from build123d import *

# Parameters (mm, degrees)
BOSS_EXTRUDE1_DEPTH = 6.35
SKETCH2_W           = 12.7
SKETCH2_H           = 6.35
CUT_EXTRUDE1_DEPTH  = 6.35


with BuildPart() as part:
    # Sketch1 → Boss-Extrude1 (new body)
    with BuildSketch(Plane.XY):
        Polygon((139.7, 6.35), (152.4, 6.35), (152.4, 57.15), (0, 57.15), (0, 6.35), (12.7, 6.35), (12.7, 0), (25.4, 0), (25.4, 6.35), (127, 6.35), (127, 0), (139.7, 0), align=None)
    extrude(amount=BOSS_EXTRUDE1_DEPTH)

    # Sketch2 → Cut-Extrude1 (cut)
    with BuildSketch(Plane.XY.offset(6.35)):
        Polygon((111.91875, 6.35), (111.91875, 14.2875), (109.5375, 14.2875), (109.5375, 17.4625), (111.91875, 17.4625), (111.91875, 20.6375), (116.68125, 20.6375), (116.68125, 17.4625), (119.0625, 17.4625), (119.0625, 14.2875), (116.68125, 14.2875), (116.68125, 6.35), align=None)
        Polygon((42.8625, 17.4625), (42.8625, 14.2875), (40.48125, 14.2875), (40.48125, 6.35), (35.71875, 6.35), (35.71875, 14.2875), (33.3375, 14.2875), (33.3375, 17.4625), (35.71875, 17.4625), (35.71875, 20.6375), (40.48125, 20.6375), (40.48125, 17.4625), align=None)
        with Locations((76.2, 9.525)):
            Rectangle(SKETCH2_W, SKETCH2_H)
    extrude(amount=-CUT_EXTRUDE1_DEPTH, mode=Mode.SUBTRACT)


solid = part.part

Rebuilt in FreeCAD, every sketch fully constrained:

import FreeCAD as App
import Part
import Sketcher

V = App.Vector
Q = App.Units.Quantity


def add_polygon(sketch, points):
    """Adds a closed chain of lines whose ends are joined by coincident constraints."""
    first, n = sketch.GeometryCount, len(points)
    for a, b in zip(points, points[1:] + points[:1]):
        sketch.addGeometry(Part.LineSegment(App.Vector(*a, 0), App.Vector(*b, 0)), False)
    for i in range(n):
        sketch.addConstraint(Sketcher.Constraint("Coincident", first + i, 2, first + (i + 1) % n, 1))

doc = App.newDocument("Part")
body = doc.addObject("PartDesign::Body", "Body")

# Sketch on XY plane
sketch1 = doc.addObject("Sketcher::SketchObject", "Sketch")
body.addObject(sketch1)
sketch1.AttachmentSupport = (doc.XY_Plane, [""])
sketch1.MapMode = "FlatFace"
add_polygon(sketch1, [(140, 6), (152, 6), (152, 57), (0, 57), (0, 6), (13, 6), (13, 0), (25, 0), (25, 6), (127, 6), (127, 0), (140, 0)])  # lines 0-11
sketch1.addConstraint([
    Sketcher.Constraint("Horizontal", 0),
    Sketcher.Constraint("Vertical", 1),
    Sketcher.Constraint("Horizontal", 2),
    Sketcher.Constraint("Vertical", 3),
    Sketcher.Constraint("Horizontal", 4),
    Sketcher.Constraint("Vertical", 5),
    Sketcher.Constraint("Horizontal", 6),
    Sketcher.Constraint("Vertical", 7),
    Sketcher.Constraint("Horizontal", 8),
    Sketcher.Constraint("Vertical", 9),
    Sketcher.Constraint("Horizontal", 10),
    Sketcher.Constraint("Vertical", 11),
    Sketcher.Constraint("PointOnObject", 2, 2, -2),
    Sketcher.Constraint("PointOnObject", 5, 2, -1),
    Sketcher.Constraint("PointOnObject", 9, 2, -1),
    Sketcher.Constraint("Horizontal", 0, 2, 3, 2),
    Sketcher.Constraint("Horizontal", 4, 2, 7, 2),
    Sketcher.Constraint("Equal", 0, 4),
    Sketcher.Constraint("Equal", 4, 6),
    Sketcher.Constraint("Equal", 6, 10),
    Sketcher.Constraint("DistanceX", 2, 2, 2, 1, Q("6 in")),
    Sketcher.Constraint("DistanceX", 8, 1, 8, 2, Q("4 in")),
    Sketcher.Constraint("DistanceY", 1, 1, 1, 2, Q("2 in")),
    Sketcher.Constraint("DistanceY", 5, 2, 5, 1, Q("0.25 in")),
])
pad1 = doc.addObject("PartDesign::Pad", "Pad")
body.addObject(pad1)
pad1.Profile = sketch1
pad1.Length = Q("0.25 in")

# Sketch on XY plane
sketch2 = doc.addObject("Sketcher::SketchObject", "Sketch001")
body.addObject(sketch2)
sketch2.AttachmentSupport = (doc.XY_Plane, [""])
sketch2.MapMode = "FlatFace"
sketch2.AttachmentOffset = App.Placement(V(0, 0, 0.25 * 25.4), App.Rotation())
add_polygon(sketch2, [(111.9, 14.3), (111.9, 6.3), (116.7, 6.3), (116.7, 14.3), (119.1, 14.3), (119.1, 17.5), (116.7, 17.5), (116.7, 20.6), (111.9, 20.6), (111.9, 17.5), (109.5, 17.5), (109.5, 14.3)])  # lines 0-11
add_polygon(sketch2, [(42.9, 14.3), (42.9, 17.5), (40.5, 17.5), (40.5, 20.6), (35.7, 20.6), (35.7, 17.5), (33.3, 17.5), (33.3, 14.3), (35.7, 14.3), (35.7, 6.3), (40.5, 6.3), (40.5, 14.3)])  # lines 12-23
add_polygon(sketch2, [(69.8, 12.7), (69.8, 6.3), (82.5, 6.3), (82.5, 12.7)])  # lines 24-27
sketch2.addConstraint([
    Sketcher.Constraint("Vertical", 0),
    Sketcher.Constraint("Horizontal", 1),
    Sketcher.Constraint("Vertical", 2),
    Sketcher.Constraint("Horizontal", 3),
    Sketcher.Constraint("Vertical", 4),
    Sketcher.Constraint("Horizontal", 5),
    Sketcher.Constraint("Vertical", 6),
    Sketcher.Constraint("Horizontal", 7),
    Sketcher.Constraint("Vertical", 8),
    Sketcher.Constraint("Horizontal", 9),
    Sketcher.Constraint("Vertical", 10),
    Sketcher.Constraint("Horizontal", 11),
    Sketcher.Constraint("Vertical", 12),
    Sketcher.Constraint("Horizontal", 13),
    Sketcher.Constraint("Vertical", 14),
    Sketcher.Constraint("Horizontal", 15),
    Sketcher.Constraint("Vertical", 16),
    Sketcher.Constraint("Horizontal", 17),
    Sketcher.Constraint("Vertical", 18),
    Sketcher.Constraint("Horizontal", 19),
    Sketcher.Constraint("Vertical", 20),
    Sketcher.Constraint("Horizontal", 21),
    Sketcher.Constraint("Vertical", 22),
    Sketcher.Constraint("Horizontal", 23),
    Sketcher.Constraint("Vertical", 24),
    Sketcher.Constraint("Horizontal", 25),
    Sketcher.Constraint("Vertical", 26),
    Sketcher.Constraint("Horizontal", 27),
    Sketcher.Constraint("Horizontal", 5, 2, 8, 2),
    Sketcher.Constraint("Horizontal", 3, 2, 10, 2),
    Sketcher.Constraint("Horizontal", 9, 2, 12, 2),
    Sketcher.Constraint("Horizontal", 7, 2, 14, 2),
    Sketcher.Constraint("Horizontal", 13, 2, 16, 2),
    Sketcher.Constraint("Horizontal", 11, 2, 18, 2),
    Sketcher.Constraint("Horizontal", 1, 2, 20, 2),
    Sketcher.Constraint("Horizontal", 19, 2, 22, 2),
    Sketcher.Constraint("Horizontal", 21, 2, 24, 2),
    Sketcher.Constraint("Vertical", 2, 2, 5, 2),
    Sketcher.Constraint("Vertical", 0, 2, 7, 2),
    Sketcher.Constraint("Vertical", 16, 2, 19, 2),
    Sketcher.Constraint("Vertical", 14, 2, 21, 2),
    Sketcher.Constraint("Equal", 5, 9),
    Sketcher.Constraint("Equal", 11, 13),
    Sketcher.Constraint("Equal", 7, 15),
    Sketcher.Constraint("Equal", 13, 17),
    Sketcher.Constraint("Equal", 4, 6),
    Sketcher.Constraint("DistanceX", 25, 1, 25, 2, Q("0.5 in")),
    Sketcher.Constraint("DistanceY", 24, 2, 24, 1, Q("0.25 in")),
    Sketcher.Constraint("DistanceY", -1, 1, 26, 2, Q("0.5 in")),
    Sketcher.Constraint("DistanceX", 1, 1, 1, 2, Q("0.1875 in")),
    Sketcher.Constraint("DistanceX", 3, 1, 3, 2, Q("0.09375 in")),
    Sketcher.Constraint("DistanceY", 0, 2, 0, 1, Q("0.3125 in")),
    Sketcher.Constraint("DistanceY", 4, 1, 4, 2, Q("0.125 in")),
    Sketcher.Constraint("DistanceX", -1, 1, 24, 2, Q("2.75 in")),
    Sketcher.Constraint("DistanceX", -1, 1, 0, 2, Q("4.40625 in")),
    Sketcher.Constraint("DistanceX", -1, 1, 12, 2, Q("1.6875 in")),
])
pocket1 = doc.addObject("PartDesign::Pocket", "Pocket")
body.addObject(pocket1)
pocket1.Profile = sketch2
pocket1.Length = Q("0.25 in")

doc.recompute()
